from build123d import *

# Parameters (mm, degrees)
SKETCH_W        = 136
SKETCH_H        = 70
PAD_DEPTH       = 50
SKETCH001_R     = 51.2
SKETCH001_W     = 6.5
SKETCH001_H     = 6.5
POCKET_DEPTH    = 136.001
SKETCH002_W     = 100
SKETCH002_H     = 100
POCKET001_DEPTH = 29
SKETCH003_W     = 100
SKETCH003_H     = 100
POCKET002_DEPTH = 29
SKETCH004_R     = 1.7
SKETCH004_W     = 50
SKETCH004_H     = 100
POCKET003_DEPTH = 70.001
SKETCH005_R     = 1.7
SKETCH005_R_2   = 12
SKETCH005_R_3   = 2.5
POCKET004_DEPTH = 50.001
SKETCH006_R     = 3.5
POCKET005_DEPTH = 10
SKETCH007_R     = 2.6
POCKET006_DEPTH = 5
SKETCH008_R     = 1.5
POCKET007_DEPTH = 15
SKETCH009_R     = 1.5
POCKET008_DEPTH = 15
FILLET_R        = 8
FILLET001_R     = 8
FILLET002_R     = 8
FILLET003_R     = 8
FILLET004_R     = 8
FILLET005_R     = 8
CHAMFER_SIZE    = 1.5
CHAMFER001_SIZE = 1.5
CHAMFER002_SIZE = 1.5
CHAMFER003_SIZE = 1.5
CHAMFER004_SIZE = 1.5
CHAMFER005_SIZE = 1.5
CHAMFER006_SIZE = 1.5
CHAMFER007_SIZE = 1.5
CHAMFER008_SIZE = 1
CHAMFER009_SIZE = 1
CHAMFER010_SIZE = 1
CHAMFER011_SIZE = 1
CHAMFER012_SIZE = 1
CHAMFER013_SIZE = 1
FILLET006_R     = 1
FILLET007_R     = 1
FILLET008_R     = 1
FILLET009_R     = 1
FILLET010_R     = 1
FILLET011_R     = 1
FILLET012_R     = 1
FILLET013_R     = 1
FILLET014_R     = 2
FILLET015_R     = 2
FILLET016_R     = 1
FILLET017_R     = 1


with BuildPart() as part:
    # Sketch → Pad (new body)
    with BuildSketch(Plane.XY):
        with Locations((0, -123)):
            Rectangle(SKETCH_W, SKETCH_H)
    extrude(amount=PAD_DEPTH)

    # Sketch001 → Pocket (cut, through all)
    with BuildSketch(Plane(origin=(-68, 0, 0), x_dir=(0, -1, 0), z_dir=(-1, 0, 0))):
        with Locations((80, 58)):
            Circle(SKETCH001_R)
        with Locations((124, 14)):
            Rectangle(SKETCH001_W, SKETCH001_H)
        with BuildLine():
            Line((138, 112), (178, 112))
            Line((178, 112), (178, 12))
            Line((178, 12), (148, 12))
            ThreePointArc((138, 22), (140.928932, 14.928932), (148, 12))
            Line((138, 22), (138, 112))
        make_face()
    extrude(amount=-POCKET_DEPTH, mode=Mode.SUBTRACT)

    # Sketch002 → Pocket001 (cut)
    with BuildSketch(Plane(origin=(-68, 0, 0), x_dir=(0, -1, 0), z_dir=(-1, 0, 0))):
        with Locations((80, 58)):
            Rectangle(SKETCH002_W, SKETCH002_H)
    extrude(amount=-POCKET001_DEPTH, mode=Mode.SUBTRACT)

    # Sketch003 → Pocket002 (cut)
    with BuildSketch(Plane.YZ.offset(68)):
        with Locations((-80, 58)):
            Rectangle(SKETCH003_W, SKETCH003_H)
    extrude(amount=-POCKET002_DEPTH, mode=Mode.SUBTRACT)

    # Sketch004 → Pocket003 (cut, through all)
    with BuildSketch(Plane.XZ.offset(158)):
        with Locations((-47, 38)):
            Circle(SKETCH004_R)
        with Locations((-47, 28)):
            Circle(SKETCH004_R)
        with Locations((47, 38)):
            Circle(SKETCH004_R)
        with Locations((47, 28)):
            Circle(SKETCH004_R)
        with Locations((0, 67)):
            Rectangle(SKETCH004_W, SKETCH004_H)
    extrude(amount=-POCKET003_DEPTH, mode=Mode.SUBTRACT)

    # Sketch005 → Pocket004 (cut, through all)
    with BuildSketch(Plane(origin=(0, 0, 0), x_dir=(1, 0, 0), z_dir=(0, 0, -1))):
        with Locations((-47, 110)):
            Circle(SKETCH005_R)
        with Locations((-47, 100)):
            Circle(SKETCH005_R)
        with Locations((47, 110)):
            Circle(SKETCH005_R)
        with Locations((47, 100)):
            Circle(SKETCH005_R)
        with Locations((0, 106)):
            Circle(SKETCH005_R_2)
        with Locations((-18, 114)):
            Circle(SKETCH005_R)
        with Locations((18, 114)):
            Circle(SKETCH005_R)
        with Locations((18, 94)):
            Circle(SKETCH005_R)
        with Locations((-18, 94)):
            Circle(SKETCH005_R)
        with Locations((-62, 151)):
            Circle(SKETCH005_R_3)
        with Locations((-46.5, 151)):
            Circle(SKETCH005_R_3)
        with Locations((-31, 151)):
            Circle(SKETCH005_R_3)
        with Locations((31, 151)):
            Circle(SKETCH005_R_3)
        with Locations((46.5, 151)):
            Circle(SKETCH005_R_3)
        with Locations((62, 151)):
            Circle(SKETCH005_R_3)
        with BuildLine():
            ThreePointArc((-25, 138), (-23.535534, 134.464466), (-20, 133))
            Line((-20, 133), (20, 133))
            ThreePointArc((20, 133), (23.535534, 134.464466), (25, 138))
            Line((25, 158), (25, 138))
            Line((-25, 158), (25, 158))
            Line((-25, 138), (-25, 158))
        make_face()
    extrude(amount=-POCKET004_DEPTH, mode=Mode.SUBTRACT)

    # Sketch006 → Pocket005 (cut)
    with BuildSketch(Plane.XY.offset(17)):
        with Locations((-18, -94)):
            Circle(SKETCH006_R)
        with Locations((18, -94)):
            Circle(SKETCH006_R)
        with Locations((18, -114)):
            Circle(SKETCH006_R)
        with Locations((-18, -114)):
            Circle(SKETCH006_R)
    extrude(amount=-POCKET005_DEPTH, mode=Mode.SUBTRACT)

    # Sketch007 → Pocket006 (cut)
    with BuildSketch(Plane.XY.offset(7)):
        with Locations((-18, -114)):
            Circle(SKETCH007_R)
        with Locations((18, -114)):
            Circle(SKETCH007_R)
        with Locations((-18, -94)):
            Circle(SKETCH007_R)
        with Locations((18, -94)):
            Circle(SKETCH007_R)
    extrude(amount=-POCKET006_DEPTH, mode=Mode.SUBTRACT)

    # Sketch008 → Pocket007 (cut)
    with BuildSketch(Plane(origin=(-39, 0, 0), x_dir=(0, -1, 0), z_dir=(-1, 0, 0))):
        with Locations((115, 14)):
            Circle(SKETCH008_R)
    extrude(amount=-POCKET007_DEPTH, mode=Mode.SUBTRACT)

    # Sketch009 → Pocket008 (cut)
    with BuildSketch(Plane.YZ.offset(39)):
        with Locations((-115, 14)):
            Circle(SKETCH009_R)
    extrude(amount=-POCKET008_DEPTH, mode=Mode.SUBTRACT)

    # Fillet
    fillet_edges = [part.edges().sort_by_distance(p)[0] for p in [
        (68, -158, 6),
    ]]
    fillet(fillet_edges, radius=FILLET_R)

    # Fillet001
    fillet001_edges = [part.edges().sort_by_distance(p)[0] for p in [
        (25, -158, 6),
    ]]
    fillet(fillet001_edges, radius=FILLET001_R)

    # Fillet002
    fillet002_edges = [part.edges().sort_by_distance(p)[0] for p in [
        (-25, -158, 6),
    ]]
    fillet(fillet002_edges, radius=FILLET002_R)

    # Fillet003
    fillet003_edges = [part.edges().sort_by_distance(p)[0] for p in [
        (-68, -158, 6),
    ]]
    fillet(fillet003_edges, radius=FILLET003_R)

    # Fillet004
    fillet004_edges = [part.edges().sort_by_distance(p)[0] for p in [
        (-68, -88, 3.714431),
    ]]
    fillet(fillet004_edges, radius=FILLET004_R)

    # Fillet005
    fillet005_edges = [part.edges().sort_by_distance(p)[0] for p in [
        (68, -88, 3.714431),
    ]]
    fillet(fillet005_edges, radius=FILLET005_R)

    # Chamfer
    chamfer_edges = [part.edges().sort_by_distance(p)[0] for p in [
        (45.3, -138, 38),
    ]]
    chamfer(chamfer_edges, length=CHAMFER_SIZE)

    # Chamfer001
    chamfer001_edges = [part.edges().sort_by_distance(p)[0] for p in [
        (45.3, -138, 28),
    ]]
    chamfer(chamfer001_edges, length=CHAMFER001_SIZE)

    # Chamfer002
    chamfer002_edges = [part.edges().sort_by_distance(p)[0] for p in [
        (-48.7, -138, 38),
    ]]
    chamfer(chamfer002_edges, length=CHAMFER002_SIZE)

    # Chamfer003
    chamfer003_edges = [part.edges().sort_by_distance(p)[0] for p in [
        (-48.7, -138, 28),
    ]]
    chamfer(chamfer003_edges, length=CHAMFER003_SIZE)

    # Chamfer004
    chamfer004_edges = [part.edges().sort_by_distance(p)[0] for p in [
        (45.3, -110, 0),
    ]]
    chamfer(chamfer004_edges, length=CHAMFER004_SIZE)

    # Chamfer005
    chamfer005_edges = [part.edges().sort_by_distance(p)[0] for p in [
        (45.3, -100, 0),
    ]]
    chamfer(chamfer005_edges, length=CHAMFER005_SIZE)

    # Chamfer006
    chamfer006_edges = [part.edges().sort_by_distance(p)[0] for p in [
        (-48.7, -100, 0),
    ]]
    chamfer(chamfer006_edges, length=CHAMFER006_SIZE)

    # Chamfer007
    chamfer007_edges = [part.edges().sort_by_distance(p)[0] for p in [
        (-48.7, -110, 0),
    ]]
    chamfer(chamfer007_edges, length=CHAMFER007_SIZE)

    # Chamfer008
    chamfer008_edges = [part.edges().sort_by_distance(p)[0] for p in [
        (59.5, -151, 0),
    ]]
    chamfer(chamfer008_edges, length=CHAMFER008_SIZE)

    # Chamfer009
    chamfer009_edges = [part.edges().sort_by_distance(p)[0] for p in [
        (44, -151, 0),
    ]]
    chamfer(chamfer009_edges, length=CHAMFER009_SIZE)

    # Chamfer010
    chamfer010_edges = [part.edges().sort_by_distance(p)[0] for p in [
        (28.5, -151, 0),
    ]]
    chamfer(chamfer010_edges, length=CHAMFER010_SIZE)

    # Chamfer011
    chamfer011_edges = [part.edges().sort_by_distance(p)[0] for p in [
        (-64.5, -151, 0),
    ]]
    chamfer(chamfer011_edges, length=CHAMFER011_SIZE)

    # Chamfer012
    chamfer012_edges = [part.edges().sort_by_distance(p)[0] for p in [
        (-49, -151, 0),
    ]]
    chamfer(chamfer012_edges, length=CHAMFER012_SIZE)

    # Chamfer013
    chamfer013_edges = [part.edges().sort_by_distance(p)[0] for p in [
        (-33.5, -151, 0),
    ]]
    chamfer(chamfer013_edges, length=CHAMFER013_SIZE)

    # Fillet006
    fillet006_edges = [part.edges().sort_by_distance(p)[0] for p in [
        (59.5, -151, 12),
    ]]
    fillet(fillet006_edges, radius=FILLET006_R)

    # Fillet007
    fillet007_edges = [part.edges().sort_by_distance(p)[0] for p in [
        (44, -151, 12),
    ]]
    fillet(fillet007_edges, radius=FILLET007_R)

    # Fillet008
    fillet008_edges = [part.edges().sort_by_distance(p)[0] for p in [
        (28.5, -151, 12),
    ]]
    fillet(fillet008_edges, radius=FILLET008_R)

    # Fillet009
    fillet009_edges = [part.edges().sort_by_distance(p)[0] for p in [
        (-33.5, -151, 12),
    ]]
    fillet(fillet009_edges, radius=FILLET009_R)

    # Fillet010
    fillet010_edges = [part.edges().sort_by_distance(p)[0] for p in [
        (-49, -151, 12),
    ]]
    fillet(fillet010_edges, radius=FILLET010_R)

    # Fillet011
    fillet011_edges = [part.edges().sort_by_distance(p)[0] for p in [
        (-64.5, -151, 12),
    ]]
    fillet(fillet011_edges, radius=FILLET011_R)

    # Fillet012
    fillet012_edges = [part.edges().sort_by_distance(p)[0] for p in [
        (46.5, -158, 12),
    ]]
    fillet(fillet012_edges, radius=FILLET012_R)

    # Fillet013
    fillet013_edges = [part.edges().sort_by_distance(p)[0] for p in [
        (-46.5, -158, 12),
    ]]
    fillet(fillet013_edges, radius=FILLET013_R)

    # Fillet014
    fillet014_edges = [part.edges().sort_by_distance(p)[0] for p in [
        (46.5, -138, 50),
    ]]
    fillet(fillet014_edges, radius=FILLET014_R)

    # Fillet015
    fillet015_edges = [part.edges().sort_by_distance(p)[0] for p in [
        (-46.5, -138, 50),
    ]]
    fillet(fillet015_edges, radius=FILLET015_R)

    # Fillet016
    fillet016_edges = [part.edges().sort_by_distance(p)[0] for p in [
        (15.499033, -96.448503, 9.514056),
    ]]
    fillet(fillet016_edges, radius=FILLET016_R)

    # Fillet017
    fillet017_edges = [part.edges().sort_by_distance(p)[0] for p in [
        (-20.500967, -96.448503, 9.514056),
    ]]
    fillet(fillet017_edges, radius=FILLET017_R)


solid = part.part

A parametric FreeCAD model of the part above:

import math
import FreeCAD as App
import Part
import Sketcher
from FreeCAD import Vector


def edges_at(feature, points):
    """Names of the edges that pass closest to the given points."""
    edges = feature.Shape.Edges
    near = lambda p: min(range(len(edges)), key=lambda i: edges[i].distToShape(Part.Vertex(*p))[0])
    return sorted({f"Edge{near(p) + 1}" for p in points})

doc = App.newDocument("Part")
body = doc.addObject("PartDesign::Body", "Body")

# Sketch on XY plane
sketch1 = body.newObject("Sketcher::SketchObject", "Sketch")
sketch1.AttachmentSupport = (doc.getObject("XY_Plane"), [""])
sketch1.MapMode = "FlatFace"
sketch1.addGeometry(Part.LineSegment(Vector(-68, -88, 0), Vector(-68, -158, 0)), False)
sketch1.addGeometry(Part.LineSegment(Vector(-68, -158, 0), Vector(68, -158, 0)), False)
sketch1.addGeometry(Part.LineSegment(Vector(68, -158, 0), Vector(68, -88, 0)), False)
sketch1.addGeometry(Part.LineSegment(Vector(68, -88, 0), Vector(-68, -88, 0)), False)
sketch1.addConstraint(Sketcher.Constraint("Coincident", 0, 2, 1, 1))
sketch1.addConstraint(Sketcher.Constraint("Coincident", 1, 2, 2, 1))
sketch1.addConstraint(Sketcher.Constraint("Coincident", 2, 2, 3, 1))
sketch1.addConstraint(Sketcher.Constraint("Coincident", 3, 2, 0, 1))
sketch1.addConstraint(Sketcher.Constraint("Vertical", 0))
sketch1.addConstraint(Sketcher.Constraint("Horizontal", 1))
sketch1.addConstraint(Sketcher.Constraint("Vertical", 2))
sketch1.addConstraint(Sketcher.Constraint("Horizontal", 3))
sketch1.addConstraint(Sketcher.Constraint("DistanceX", 1, 1, 1, 2, 136.0))
sketch1.addConstraint(Sketcher.Constraint("DistanceY", 0, 2, 0, 1, 70.0))
sketch1.addConstraint(Sketcher.Constraint("DistanceX", 0, 2, -1, 1, 68.0))
sketch1.addConstraint(Sketcher.Constraint("DistanceY", 0, 2, -1, 1, 158.0))
pad1 = body.newObject("PartDesign::Pad", "Pad")
pad1.Profile = sketch1
pad1.Length = 50

# Sketch on YZ plane
sketch2 = body.newObject("Sketcher::SketchObject", "Sketch001")
sketch2.AttachmentSupport = (doc.getObject("YZ_Plane"), [""])
sketch2.MapMode = "FlatFace"
sketch2.AttachmentOffset = App.Placement(Vector(0, 0, -68), App.Rotation())
sketch2.addGeometry(Part.Circle(Vector(-80, 58, 0), Vector(0, 0, 1), 51.2), False)
sketch2.addGeometry(Part.LineSegment(Vector(-120.75, 17.25, 0), Vector(-120.75, 10.75, 0)), False)
sketch2.addGeometry(Part.LineSegment(Vector(-120.75, 10.75, 0), Vector(-127.25, 10.75, 0)), False)
sketch2.addGeometry(Part.LineSegment(Vector(-127.25, 10.75, 0), Vector(-127.25, 17.25, 0)), False)
sketch2.addGeometry(Part.LineSegment(Vector(-127.25, 17.25, 0), Vector(-120.75, 17.25, 0)), False)
sketch2.addGeometry(Part.LineSegment(Vector(-178, 112, 0), Vector(-138, 112, 0)), False)
sketch2.addGeometry(Part.LineSegment(Vector(-138, 112, 0), Vector(-138, 22, 0)), False)
sketch2.addGeometry(Part.ArcOfCircle(Part.Circle(Vector(-147.999999, 21.999999, 0), Vector(0, 0, 1), 9.999999), math.radians(-90.000004), math.radians(0.000004)), False)
sketch2.addGeometry(Part.LineSegment(Vector(-148, 12, 0), Vector(-178, 12, 0)), False)
sketch2.addGeometry(Part.LineSegment(Vector(-178, 12, 0), Vector(-178, 112, 0)), False)
sketch2.addConstraint(Sketcher.Constraint("Coincident", 1, 2, 2, 1))
sketch2.addConstraint(Sketcher.Constraint("Coincident", 2, 2, 3, 1))
sketch2.addConstraint(Sketcher.Constraint("Coincident", 3, 2, 4, 1))
sketch2.addConstraint(Sketcher.Constraint("Coincident", 4, 2, 1, 1))
sketch2.addConstraint(Sketcher.Constraint("Coincident", 5, 2, 6, 1))
sketch2.addConstraint(Sketcher.Constraint("Tangent", 6, 2, 7, 2))
sketch2.addConstraint(Sketcher.Constraint("Tangent", 7, 1, 8, 1))
sketch2.addConstraint(Sketcher.Constraint("Coincident", 8, 2, 9, 1))
sketch2.addConstraint(Sketcher.Constraint("Coincident", 9, 2, 5, 1))
sketch2.addConstraint(Sketcher.Constraint("Vertical", 1))
sketch2.addConstraint(Sketcher.Constraint("Horizontal", 2))
sketch2.addConstraint(Sketcher.Constraint("Vertical", 3))
sketch2.addConstraint(Sketcher.Constraint("Horizontal", 4))
sketch2.addConstraint(Sketcher.Constraint("Horizontal", 5))
sketch2.addConstraint(Sketcher.Constraint("Vertical", 6))
sketch2.addConstraint(Sketcher.Constraint("Horizontal", 8))
sketch2.addConstraint(Sketcher.Constraint("Vertical", 9))
sketch2.addConstraint(Sketcher.Constraint("Equal", 4, 1))
sketch2.addConstraint(Sketcher.Constraint("Radius", 7, 9.999999))
sketch2.addConstraint(Sketcher.Constraint("Diameter", 0, 102.4))
sketch2.addConstraint(Sketcher.Constraint("DistanceX", 5, 1, 5, 2, 40.0))
sketch2.addConstraint(Sketcher.Constraint("DistanceY", 6, 2, 6, 1, 90.0))
sketch2.addConstraint(Sketcher.Constraint("DistanceX", 2, 2, 2, 1, 6.5))
sketch2.addConstraint(Sketcher.Constraint("DistanceX", 0, 3, -1, 1, 80.0))
sketch2.addConstraint(Sketcher.Constraint("DistanceY", -1, 1, 0, 3, 58.0))
sketch2.addConstraint(Sketcher.Constraint("DistanceX", 7, 3, -1, 1, 147.999999))
sketch2.addConstraint(Sketcher.Constraint("DistanceY", -1, 1, 7, 3, 21.999999))
sketch2.addConstraint(Sketcher.Constraint("DistanceX", 1, 2, -1, 1, 120.75))
sketch2.addConstraint(Sketcher.Constraint("DistanceY", -1, 1, 1, 2, 10.75))
pocket1 = body.newObject("PartDesign::Pocket", "Pocket")
pocket1.Profile = sketch2
pocket1.Type = "ThroughAll"
pocket1.Reversed = True

# Sketch on YZ plane
sketch3 = body.newObject("Sketcher::SketchObject", "Sketch002")
sketch3.AttachmentSupport = (doc.getObject("YZ_Plane"), [""])
sketch3.MapMode = "FlatFace"
sketch3.AttachmentOffset = App.Placement(Vector(0, 0, -68), App.Rotation())
sketch3.addGeometry(Part.LineSegment(Vector(-30, 108, 0), Vector(-30, 8, 0)), False)
sketch3.addGeometry(Part.LineSegment(Vector(-30, 8, 0), Vector(-130, 8, 0)), False)
sketch3.addGeometry(Part.LineSegment(Vector(-130, 8, 0), Vector(-130, 108, 0)), False)
sketch3.addGeometry(Part.LineSegment(Vector(-130, 108, 0), Vector(-30, 108, 0)), False)
sketch3.addConstraint(Sketcher.Constraint("Coincident", 0, 2, 1, 1))
sketch3.addConstraint(Sketcher.Constraint("Coincident", 1, 2, 2, 1))
sketch3.addConstraint(Sketcher.Constraint("Coincident", 2, 2, 3, 1))
sketch3.addConstraint(Sketcher.Constraint("Coincident", 3, 2, 0, 1))
sketch3.addConstraint(Sketcher.Constraint("Vertical", 0))
sketch3.addConstraint(Sketcher.Constraint("Horizontal", 1))
sketch3.addConstraint(Sketcher.Constraint("Vertical", 2))
sketch3.addConstraint(Sketcher.Constraint("Horizontal", 3))
sketch3.addConstraint(Sketcher.Constraint("Equal", 3, 0))
sketch3.addConstraint(Sketcher.Constraint("DistanceX", 1, 2, 1, 1, 100.0))
sketch3.addConstraint(Sketcher.Constraint("DistanceX", 0, 2, -1, 1, 30.0))
sketch3.addConstraint(Sketcher.Constraint("DistanceY", -1, 1, 0, 2, 8.0))
pocket2 = body.newObject("PartDesign::Pocket", "Pocket001")
pocket2.Profile = sketch3
pocket2.Length = 29
pocket2.Reversed = True

# Sketch on YZ plane
sketch4 = body.newObject("Sketcher::SketchObject", "Sketch003")
sketch4.AttachmentSupport = (doc.getObject("YZ_Plane"), [""])
sketch4.MapMode = "FlatFace"
sketch4.AttachmentOffset = App.Placement(Vector(0, 0, 68), App.Rotation())
sketch4.addGeometry(Part.LineSegment(Vector(-130, 108, 0), Vector(-130, 8, 0)), False)
sketch4.addGeometry(Part.LineSegment(Vector(-130, 8, 0), Vector(-30, 8, 0)), False)
sketch4.addGeometry(Part.LineSegment(Vector(-30, 8, 0), Vector(-30, 108, 0)), False)
sketch4.addGeometry(Part.LineSegment(Vector(-30, 108, 0), Vector(-130, 108, 0)), False)
sketch4.addConstraint(Sketcher.Constraint("Coincident", 0, 2, 1, 1))
sketch4.addConstraint(Sketcher.Constraint("Coincident", 1, 2, 2, 1))
sketch4.addConstraint(Sketcher.Constraint("Coincident", 2, 2, 3, 1))
sketch4.addConstraint(Sketcher.Constraint("Coincident", 3, 2, 0, 1))
sketch4.addConstraint(Sketcher.Constraint("Vertical", 0))
sketch4.addConstraint(Sketcher.Constraint("Horizontal", 1))
sketch4.addConstraint(Sketcher.Constraint("Vertical", 2))
sketch4.addConstraint(Sketcher.Constraint("Horizontal", 3))
sketch4.addConstraint(Sketcher.Constraint("Equal", 3, 0))
sketch4.addConstraint(Sketcher.Constraint("DistanceX", 1, 1, 1, 2, 100.0))
sketch4.addConstraint(Sketcher.Constraint("DistanceX", 0, 2, -1, 1, 130.0))
sketch4.addConstraint(Sketcher.Constraint("DistanceY", -1, 1, 0, 2, 8.0))
pocket3 = body.newObject("PartDesign::Pocket", "Pocket002")
pocket3.Profile = sketch4
pocket3.Length = 29

# Sketch on XZ plane
sketch5 = body.newObject("Sketcher::SketchObject", "Sketch004")
sketch5.AttachmentSupport = (doc.getObject("XZ_Plane"), [""])
sketch5.MapMode = "FlatFace"
sketch5.AttachmentOffset = App.Placement(Vector(0, 0, 158), App.Rotation())
sketch5.addGeometry(Part.Circle(Vector(-47, 38, 0), Vector(0, 0, 1), 1.7), False)
sketch5.addGeometry(Part.Circle(Vector(-47, 28, 0), Vector(0, 0, 1), 1.7), False)
sketch5.addGeometry(Part.Circle(Vector(47, 38, 0), Vector(0, 0, 1), 1.7), False)
sketch5.addGeometry(Part.Circle(Vector(47, 28, 0), Vector(0, 0, 1), 1.7), False)
sketch5.addGeometry(Part.LineSegment(Vector(-25, 117, 0), Vector(-25, 17, 0)), False)
sketch5.addGeometry(Part.LineSegment(Vector(-25, 17, 0), Vector(25, 17, 0)), False)
sketch5.addGeometry(Part.LineSegment(Vector(25, 17, 0), Vector(25, 117, 0)), False)
sketch5.addGeometry(Part.LineSegment(Vector(25, 117, 0), Vector(-25, 117, 0)), False)
sketch5.addConstraint(Sketcher.Constraint("Coincident", 4, 2, 5, 1))
sketch5.addConstraint(Sketcher.Constraint("Coincident", 5, 2, 6, 1))
sketch5.addConstraint(Sketcher.Constraint("Coincident", 6, 2, 7, 1))
sketch5.addConstraint(Sketcher.Constraint("Coincident", 7, 2, 4, 1))
sketch5.addConstraint(Sketcher.Constraint("Vertical", 4))
sketch5.addConstraint(Sketcher.Constraint("Horizontal", 5))
sketch5.addConstraint(Sketcher.Constraint("Vertical", 6))
sketch5.addConstraint(Sketcher.Constraint("Horizontal", 7))
sketch5.addConstraint(Sketcher.Constraint("Equal", 0, 1))
sketch5.addConstraint(Sketcher.Constraint("Equal", 1, 2))
sketch5.addConstraint(Sketcher.Constraint("Equal", 2, 3))
sketch5.addConstraint(Sketcher.Constraint("Symmetric", 0, 3, 2, 3, -2))
sketch5.addConstraint(Sketcher.Constraint("Symmetric", 1, 3, 3, 3, -2))
sketch5.addConstraint(Sketcher.Constraint("Vertical", 0, 3, 1, 3))
sketch5.addConstraint(Sketcher.Constraint("Diameter", 0, 3.4))
sketch5.addConstraint(Sketcher.Constraint("DistanceX", 5, 1, 5, 2, 50.0))
sketch5.addConstraint(Sketcher.Constraint("DistanceY", 4, 2, 4, 1, 100.0))
sketch5.addConstraint(Sketcher.Constraint("DistanceX", 0, 3, -1, 1, 47.0))
sketch5.addConstraint(Sketcher.Constraint("DistanceY", -1, 1, 0, 3, 38.0))
sketch5.addConstraint(Sketcher.Constraint("DistanceY", -1, 1, 1, 3, 28.0))
sketch5.addConstraint(Sketcher.Constraint("DistanceX", 4, 2, -1, 1, 25.0))
sketch5.addConstraint(Sketcher.Constraint("DistanceY", -1, 1, 4, 2, 17.0))
pocket4 = body.newObject("PartDesign::Pocket", "Pocket003")
pocket4.Profile = sketch5
pocket4.Type = "ThroughAll"

# Sketch on XY plane
sketch6 = body.newObject("Sketcher::SketchObject", "Sketch005")
sketch6.AttachmentSupport = (doc.getObject("XY_Plane"), [""])
sketch6.MapMode = "FlatFace"
sketch6.addGeometry(Part.Circle(Vector(-47, -110, 0), Vector(0, 0, 1), 1.7), False)
sketch6.addGeometry(Part.Circle(Vector(-47, -100, 0), Vector(0, 0, 1), 1.7), False)
sketch6.addGeometry(Part.Circle(Vector(47, -110, 0), Vector(0, 0, 1), 1.7), False)
sketch6.addGeometry(Part.Circle(Vector(47, -100, 0), Vector(0, 0, 1), 1.7), False)
sketch6.addGeometry(Part.Circle(Vector(0, -106, 0), Vector(0, 0, 1), 12), False)
sketch6.addGeometry(Part.Circle(Vector(-18, -114, 0), Vector(0, 0, 1), 1.7), False)
sketch6.addGeometry(Part.Circle(Vector(18, -114, 0), Vector(0, 0, 1), 1.7), False)
sketch6.addGeometry(Part.Circle(Vector(18, -94, 0), Vector(0, 0, 1), 1.7), False)
sketch6.addGeometry(Part.Circle(Vector(-18, -94, 0), Vector(0, 0, 1), 1.7), False)
sketch6.addGeometry(Part.Circle(Vector(-62, -151, 0), Vector(0, 0, 1), 2.5), False)
sketch6.addGeometry(Part.Circle(Vector(-46.5, -151, 0), Vector(0, 0, 1), 2.5), False)
sketch6.addGeometry(Part.Circle(Vector(-31, -151, 0), Vector(0, 0, 1), 2.5), False)
sketch6.addGeometry(Part.Circle(Vector(31, -151, 0), Vector(0, 0, 1), 2.5), False)
sketch6.addGeometry(Part.Circle(Vector(46.5, -151, 0), Vector(0, 0, 1), 2.5), False)
sketch6.addGeometry(Part.Circle(Vector(62, -151, 0), Vector(0, 0, 1), 2.5), False)
sketch6.addGeometry(Part.ArcOfCircle(Part.Circle(Vector(-20, -138, 0), Vector(0, 0, 1), 5), math.radians(89.999996), math.radians(180.000004)), False)
sketch6.addGeometry(Part.LineSegment(Vector(-20, -133, 0), Vector(20, -133, 0)), False)
sketch6.addGeometry(Part.ArcOfCircle(Part.Circle(Vector(20, -138, 0), Vector(0, 0, 1), 5), math.radians(-0.000004), math.radians(90.000004)), False)
sketch6.addGeometry(Part.LineSegment(Vector(25, -138, 0), Vector(25, -158, 0)), False)
sketch6.addGeometry(Part.LineSegment(Vector(25, -158, 0), Vector(-25, -158, 0)), False)
sketch6.addGeometry(Part.LineSegment(Vector(-25, -158, 0), Vector(-25, -138, 0)), False)
sketch6.addConstraint(Sketcher.Constraint("Tangent", 15, 1, 16, 1))
sketch6.addConstraint(Sketcher.Constraint("Tangent", 16, 2, 17, 2))
sketch6.addConstraint(Sketcher.Constraint("Tangent", 17, 1, 18, 1))
sketch6.addConstraint(Sketcher.Constraint("Coincident", 18, 2, 19, 1))
sketch6.addConstraint(Sketcher.Constraint("Coincident", 19, 2, 20, 1))
sketch6.addConstraint(Sketcher.Constraint("Tangent", 20, 2, 15, 2))
sketch6.addConstraint(Sketcher.Constraint("Horizontal", 16))
sketch6.addConstraint(Sketcher.Constraint("Vertical", 18))
sketch6.addConstraint(Sketcher.Constraint("Horizontal", 19))
sketch6.addConstraint(Sketcher.Constraint("Vertical", 20))
sketch6.addConstraint(Sketcher.Constraint("Equal", 0, 1))
sketch6.addConstraint(Sketcher.Constraint("Equal", 1, 2))
sketch6.addConstraint(Sketcher.Constraint("Equal", 2, 3))
sketch6.addConstraint(Sketcher.Constraint("Equal", 3, 5))
sketch6.addConstraint(Sketcher.Constraint("Equal", 5, 6))
sketch6.addConstraint(Sketcher.Constraint("Equal", 6, 7))
sketch6.addConstraint(Sketcher.Constraint("Equal", 7, 8))
sketch6.addConstraint(Sketcher.Constraint("Equal", 9, 10))
sketch6.addConstraint(Sketcher.Constraint("Equal", 10, 11))
sketch6.addConstraint(Sketcher.Constraint("Equal", 11, 12))
sketch6.addConstraint(Sketcher.Constraint("Equal", 12, 13))
sketch6.addConstraint(Sketcher.Constraint("Equal", 13, 14))
sketch6.addConstraint(Sketcher.Constraint("Equal", 15, 17))
sketch6.addConstraint(Sketcher.Constraint("Symmetric", 0, 3, 2, 3, -2))
sketch6.addConstraint(Sketcher.Constraint("Symmetric", 1, 3, 3, 3, -2))
sketch6.addConstraint(Sketcher.Constraint("Symmetric", 5, 3, 6, 3, -2))
sketch6.addConstraint(Sketcher.Constraint("Symmetric", 7, 3, 8, 3, -2))
sketch6.addConstraint(Sketcher.Constraint("Symmetric", 11, 3, 12, 3, -2))
sketch6.addConstraint(Sketcher.Constraint("Symmetric", 10, 3, 13, 3, -2))
sketch6.addConstraint(Sketcher.Constraint("Symmetric", 9, 3, 14, 3, -2))
sketch6.addConstraint(Sketcher.Constraint("PointOnObject", 4, 3, -2))
sketch6.addConstraint(Sketcher.Constraint("Horizontal", 9, 3, 10, 3))
sketch6.addConstraint(Sketcher.Constraint("Horizontal", 10, 3, 11, 3))
sketch6.addConstraint(Sketcher.Constraint("Vertical", 0, 3, 1, 3))
sketch6.addConstraint(Sketcher.Constraint("Vertical", 6, 3, 7, 3))
sketch6.addConstraint(Sketcher.Constraint("Diameter", 4, 24.0))
sketch6.addConstraint(Sketcher.Constraint("Diameter", 9, 5.0))
sketch6.addConstraint(Sketcher.Constraint("Radius", 15, 5.0))
sketch6.addConstraint(Sketcher.Constraint("Diameter", 0, 3.4))
sketch6.addConstraint(Sketcher.Constraint("DistanceX", 16, 1, 16, 2, 40.0))
sketch6.addConstraint(Sketcher.Constraint("DistanceY", 18, 2, 18, 1, 20.0))
sketch6.addConstraint(Sketcher.Constraint("DistanceX", 0, 3, -1, 1, 47.0))
sketch6.addConstraint(Sketcher.Constraint("DistanceY", 0, 3, -1, 1, 110.0))
sketch6.addConstraint(Sketcher.Constraint("DistanceY", 1, 3, -1, 1, 100.0))
sketch6.addConstraint(Sketcher.Constraint("DistanceY", 4, 3, -1, 1, 106.0))
sketch6.addConstraint(Sketcher.Constraint("DistanceX", 5, 3, -1, 1, 18.0))
sketch6.addConstraint(Sketcher.Constraint("DistanceY", 5, 3, -1, 1, 114.0))
sketch6.addConstraint(Sketcher.Constraint("DistanceY", 7, 3, -1, 1, 94.0))
sketch6.addConstraint(Sketcher.Constraint("DistanceX", 9, 3, -1, 1, 62.0))
sketch6.addConstraint(Sketcher.Constraint("DistanceY", 9, 3, -1, 1, 151.0))
sketch6.addConstraint(Sketcher.Constraint("DistanceX", 11, 3, -1, 1, 31.0))
sketch6.addConstraint(Sketcher.Constraint("DistanceX", 15, 3, -1, 1, 20.0))
sketch6.addConstraint(Sketcher.Constraint("DistanceY", 15, 3, -1, 1, 138.0))
sketch6.addConstraint(Sketcher.Constraint("DistanceX", 10, 3, -1, 1, 46.5))
pocket5 = body.newObject("PartDesign::Pocket", "Pocket004")
pocket5.Profile = sketch6
pocket5.Type = "ThroughAll"
pocket5.Reversed = True

# Sketch on XY plane
sketch7 = body.newObject("Sketcher::SketchObject", "Sketch006")
sketch7.AttachmentSupport = (doc.getObject("XY_Plane"), [""])
sketch7.MapMode = "FlatFace"
sketch7.AttachmentOffset = App.Placement(Vector(0, 0, 17), App.Rotation())
sketch7.addGeometry(Part.Circle(Vector(-18, -94, 0), Vector(0, 0, 1), 3.5), False)
sketch7.addGeometry(Part.Circle(Vector(18, -94, 0), Vector(0, 0, 1), 3.5), False)
sketch7.addGeometry(Part.Circle(Vector(18, -114, 0), Vector(0, 0, 1), 3.5), False)
sketch7.addGeometry(Part.Circle(Vector(-18, -114, 0), Vector(0, 0, 1), 3.5), False)
sketch7.addConstraint(Sketcher.Constraint("Equal", 0, 1))
sketch7.addConstraint(Sketcher.Constraint("Equal", 1, 2))
sketch7.addConstraint(Sketcher.Constraint("Equal", 2, 3))
sketch7.addConstraint(Sketcher.Constraint("Symmetric", 0, 3, 1, 3, -2))
sketch7.addConstraint(Sketcher.Constraint("Symmetric", 2, 3, 3, 3, -2))
sketch7.addConstraint(Sketcher.Constraint("Vertical", 1, 3, 2, 3))
sketch7.addConstraint(Sketcher.Constraint("Diameter", 0, 7.0))
sketch7.addConstraint(Sketcher.Constraint("DistanceX", 0, 3, -1, 1, 18.0))
sketch7.addConstraint(Sketcher.Constraint("DistanceY", 0, 3, -1, 1, 94.0))
sketch7.addConstraint(Sketcher.Constraint("DistanceY", 2, 3, -1, 1, 114.0))
pocket6 = body.newObject("PartDesign::Pocket", "Pocket005")
pocket6.Profile = sketch7
pocket6.Length = 10

# Sketch on XY plane
sketch8 = body.newObject("Sketcher::SketchObject", "Sketch007")
sketch8.AttachmentSupport = (doc.getObject("XY_Plane"), [""])
sketch8.MapMode = "FlatFace"
sketch8.AttachmentOffset = App.Placement(Vector(0, 0, 7), App.Rotation())
sketch8.addGeometry(Part.Circle(Vector(-18, -114, 0), Vector(0, 0, 1), 2.6), False)
sketch8.addGeometry(Part.Circle(Vector(18, -114, 0), Vector(0, 0, 1), 2.6), False)
sketch8.addGeometry(Part.Circle(Vector(-18, -94, 0), Vector(0, 0, 1), 2.6), False)
sketch8.addGeometry(Part.Circle(Vector(18, -94, 0), Vector(0, 0, 1), 2.6), False)
sketch8.addConstraint(Sketcher.Constraint("Equal", 0, 1))
sketch8.addConstraint(Sketcher.Constraint("Equal", 1, 2))
sketch8.addConstraint(Sketcher.Constraint("Equal", 2, 3))
sketch8.addConstraint(Sketcher.Constraint("Symmetric", 0, 3, 1, 3, -2))
sketch8.addConstraint(Sketcher.Constraint("Symmetric", 2, 3, 3, 3, -2))
sketch8.addConstraint(Sketcher.Constraint("Vertical", 0, 3, 2, 3))
sketch8.addConstraint(Sketcher.Constraint("Diameter", 0, 5.2))
sketch8.addConstraint(Sketcher.Constraint("DistanceX", 0, 3, -1, 1, 18.0))
sketch8.addConstraint(Sketcher.Constraint("DistanceY", 0, 3, -1, 1, 114.0))
sketch8.addConstraint(Sketcher.Constraint("DistanceY", 2, 3, -1, 1, 94.0))
pocket7 = body.newObject("PartDesign::Pocket", "Pocket006")
pocket7.Profile = sketch8
pocket7.Length = 5

# Sketch on YZ plane
sketch9 = body.newObject("Sketcher::SketchObject", "Sketch008")
sketch9.AttachmentSupport = (doc.getObject("YZ_Plane"), [""])
sketch9.MapMode = "FlatFace"
sketch9.AttachmentOffset = App.Placement(Vector(0, 0, -39), App.Rotation())
sketch9.addGeometry(Part.Circle(Vector(-115, 14, 0), Vector(0, 0, 1), 1.5), False)
sketch9.addConstraint(Sketcher.Constraint("Diameter", 0, 3.0))
sketch9.addConstraint(Sketcher.Constraint("DistanceX", 0, 3, -1, 1, 115.0))
sketch9.addConstraint(Sketcher.Constraint("DistanceY", -1, 1, 0, 3, 14.0))
pocket8 = body.newObject("PartDesign::Pocket", "Pocket007")
pocket8.Profile = sketch9
pocket8.Length = 15
pocket8.Reversed = True

# Sketch on YZ plane
sketch10 = body.newObject("Sketcher::SketchObject", "Sketch009")
sketch10.AttachmentSupport = (doc.getObject("YZ_Plane"), [""])
sketch10.MapMode = "FlatFace"
sketch10.AttachmentOffset = App.Placement(Vector(0, 0, 39), App.Rotation())
sketch10.addGeometry(Part.Circle(Vector(-115, 14, 0), Vector(0, 0, 1), 1.5), False)
sketch10.addConstraint(Sketcher.Constraint("Diameter", 0, 3.0))
sketch10.addConstraint(Sketcher.Constraint("DistanceX", 0, 3, -1, 1, 115.0))
sketch10.addConstraint(Sketcher.Constraint("DistanceY", -1, 1, 0, 3, 14.0))
pocket9 = body.newObject("PartDesign::Pocket", "Pocket008")
pocket9.Profile = sketch10
pocket9.Length = 15
doc.recompute()

fillet = body.newObject("PartDesign::Fillet", "Fillet")
fillet.Base = (pocket9, edges_at(pocket9, [(68, -158, 6)]))
fillet.Radius = 8
doc.recompute()

fillet2 = body.newObject("PartDesign::Fillet", "Fillet001")
fillet2.Base = (fillet, edges_at(fillet, [(25, -158, 6)]))
fillet2.Radius = 8
doc.recompute()

fillet3 = body.newObject("PartDesign::Fillet", "Fillet002")
fillet3.Base = (fillet2, edges_at(fillet2, [(-25, -158, 6)]))
fillet3.Radius = 8
doc.recompute()

fillet4 = body.newObject("PartDesign::Fillet", "Fillet003")
fillet4.Base = (fillet3, edges_at(fillet3, [(-68, -158, 6)]))
fillet4.Radius = 8
doc.recompute()

fillet5 = body.newObject("PartDesign::Fillet", "Fillet004")
fillet5.Base = (fillet4, edges_at(fillet4, [(-68, -88, 3.714)]))
fillet5.Radius = 8
doc.recompute()

fillet6 = body.newObject("PartDesign::Fillet", "Fillet005")
fillet6.Base = (fillet5, edges_at(fillet5, [(68, -88, 3.714)]))
fillet6.Radius = 8
doc.recompute()

chamfer = body.newObject("PartDesign::Chamfer", "Chamfer")
chamfer.Base = (fillet6, edges_at(fillet6, [(45.3, -138, 38)]))
chamfer.Size = 1.5
doc.recompute()

chamfer2 = body.newObject("PartDesign::Chamfer", "Chamfer001")
chamfer2.Base = (chamfer, edges_at(chamfer, [(45.3, -138, 28)]))
chamfer2.Size = 1.5
doc.recompute()

chamfer3 = body.newObject("PartDesign::Chamfer", "Chamfer002")
chamfer3.Base = (chamfer2, edges_at(chamfer2, [(-48.7, -138, 38)]))
chamfer3.Size = 1.5
doc.recompute()

chamfer4 = body.newObject("PartDesign::Chamfer", "Chamfer003")
chamfer4.Base = (chamfer3, edges_at(chamfer3, [(-48.7, -138, 28)]))
chamfer4.Size = 1.5
doc.recompute()

chamfer5 = body.newObject("PartDesign::Chamfer", "Chamfer004")
chamfer5.Base = (chamfer4, edges_at(chamfer4, [(45.3, -110, 0)]))
chamfer5.Size = 1.5
doc.recompute()

chamfer6 = body.newObject("PartDesign::Chamfer", "Chamfer005")
chamfer6.Base = (chamfer5, edges_at(chamfer5, [(45.3, -100, 0)]))
chamfer6.Size = 1.5
doc.recompute()

chamfer7 = body.newObject("PartDesign::Chamfer", "Chamfer006")
chamfer7.Base = (chamfer6, edges_at(chamfer6, [(-48.7, -100, 0)]))
chamfer7.Size = 1.5
doc.recompute()

chamfer8 = body.newObject("PartDesign::Chamfer", "Chamfer007")
chamfer8.Base = (chamfer7, edges_at(chamfer7, [(-48.7, -110, 0)]))
chamfer8.Size = 1.5
doc.recompute()

chamfer9 = body.newObject("PartDesign::Chamfer", "Chamfer008")
chamfer9.Base = (chamfer8, edges_at(chamfer8, [(59.5, -151, 0)]))
chamfer9.Size = 1
doc.recompute()

chamfer10 = body.newObject("PartDesign::Chamfer", "Chamfer009")
chamfer10.Base = (chamfer9, edges_at(chamfer9, [(44, -151, 0)]))
chamfer10.Size = 1
doc.recompute()

chamfer11 = body.newObject("PartDesign::Chamfer", "Chamfer010")
chamfer11.Base = (chamfer10, edges_at(chamfer10, [(28.5, -151, 0)]))
chamfer11.Size = 1
doc.recompute()

chamfer12 = body.newObject("PartDesign::Chamfer", "Chamfer011")
chamfer12.Base = (chamfer11, edges_at(chamfer11, [(-64.5, -151, 0)]))
chamfer12.Size = 1
doc.recompute()

chamfer13 = body.newObject("PartDesign::Chamfer", "Chamfer012")
chamfer13.Base = (chamfer12, edges_at(chamfer12, [(-49, -151, 0)]))
chamfer13.Size = 1
doc.recompute()

chamfer14 = body.newObject("PartDesign::Chamfer", "Chamfer013")
chamfer14.Base = (chamfer13, edges_at(chamfer13, [(-33.5, -151, 0)]))
chamfer14.Size = 1
doc.recompute()

fillet7 = body.newObject("PartDesign::Fillet", "Fillet006")
fillet7.Base = (chamfer14, edges_at(chamfer14, [(59.5, -151, 12)]))
fillet7.Radius = 1
doc.recompute()

fillet8 = body.newObject("PartDesign::Fillet", "Fillet007")
fillet8.Base = (fillet7, edges_at(fillet7, [(44, -151, 12)]))
fillet8.Radius = 1
doc.recompute()

fillet9 = body.newObject("PartDesign::Fillet", "Fillet008")
fillet9.Base = (fillet8, edges_at(fillet8, [(28.5, -151, 12)]))
fillet9.Radius = 1
doc.recompute()

fillet10 = body.newObject("PartDesign::Fillet", "Fillet009")
fillet10.Base = (fillet9, edges_at(fillet9, [(-33.5, -151, 12)]))
fillet10.Radius = 1
doc.recompute()

fillet11 = body.newObject("PartDesign::Fillet", "Fillet010")
fillet11.Base = (fillet10, edges_at(fillet10, [(-49, -151, 12)]))
fillet11.Radius = 1
doc.recompute()

fillet12 = body.newObject("PartDesign::Fillet", "Fillet011")
fillet12.Base = (fillet11, edges_at(fillet11, [(-64.5, -151, 12)]))
fillet12.Radius = 1
doc.recompute()

fillet13 = body.newObject("PartDesign::Fillet", "Fillet012")
fillet13.Base = (fillet12, edges_at(fillet12, [(46.5, -158, 12)]))
fillet13.Radius = 1
doc.recompute()

fillet14 = body.newObject("PartDesign::Fillet", "Fillet013")
fillet14.Base = (fillet13, edges_at(fillet13, [(-46.5, -158, 12)]))
fillet14.Radius = 1
doc.recompute()

fillet15 = body.newObject("PartDesign::Fillet", "Fillet014")
fillet15.Base = (fillet14, edges_at(fillet14, [(46.5, -138, 50)]))
fillet15.Radius = 2
doc.recompute()

fillet16 = body.newObject("PartDesign::Fillet", "Fillet015")
fillet16.Base = (fillet15, edges_at(fillet15, [(-46.5, -138, 50)]))
fillet16.Radius = 2
doc.recompute()

fillet17 = body.newObject("PartDesign::Fillet", "Fillet016")
fillet17.Base = (fillet16, edges_at(fillet16, [(14.5, -94.048, 8.765)]))
fillet17.Radius = 1
doc.recompute()

fillet18 = body.newObject("PartDesign::Fillet", "Fillet017")
fillet18.Base = (fillet17, edges_at(fillet17, [(-21.5, -94.048, 8.765)]))
fillet18.Radius = 1

doc.recompute()
